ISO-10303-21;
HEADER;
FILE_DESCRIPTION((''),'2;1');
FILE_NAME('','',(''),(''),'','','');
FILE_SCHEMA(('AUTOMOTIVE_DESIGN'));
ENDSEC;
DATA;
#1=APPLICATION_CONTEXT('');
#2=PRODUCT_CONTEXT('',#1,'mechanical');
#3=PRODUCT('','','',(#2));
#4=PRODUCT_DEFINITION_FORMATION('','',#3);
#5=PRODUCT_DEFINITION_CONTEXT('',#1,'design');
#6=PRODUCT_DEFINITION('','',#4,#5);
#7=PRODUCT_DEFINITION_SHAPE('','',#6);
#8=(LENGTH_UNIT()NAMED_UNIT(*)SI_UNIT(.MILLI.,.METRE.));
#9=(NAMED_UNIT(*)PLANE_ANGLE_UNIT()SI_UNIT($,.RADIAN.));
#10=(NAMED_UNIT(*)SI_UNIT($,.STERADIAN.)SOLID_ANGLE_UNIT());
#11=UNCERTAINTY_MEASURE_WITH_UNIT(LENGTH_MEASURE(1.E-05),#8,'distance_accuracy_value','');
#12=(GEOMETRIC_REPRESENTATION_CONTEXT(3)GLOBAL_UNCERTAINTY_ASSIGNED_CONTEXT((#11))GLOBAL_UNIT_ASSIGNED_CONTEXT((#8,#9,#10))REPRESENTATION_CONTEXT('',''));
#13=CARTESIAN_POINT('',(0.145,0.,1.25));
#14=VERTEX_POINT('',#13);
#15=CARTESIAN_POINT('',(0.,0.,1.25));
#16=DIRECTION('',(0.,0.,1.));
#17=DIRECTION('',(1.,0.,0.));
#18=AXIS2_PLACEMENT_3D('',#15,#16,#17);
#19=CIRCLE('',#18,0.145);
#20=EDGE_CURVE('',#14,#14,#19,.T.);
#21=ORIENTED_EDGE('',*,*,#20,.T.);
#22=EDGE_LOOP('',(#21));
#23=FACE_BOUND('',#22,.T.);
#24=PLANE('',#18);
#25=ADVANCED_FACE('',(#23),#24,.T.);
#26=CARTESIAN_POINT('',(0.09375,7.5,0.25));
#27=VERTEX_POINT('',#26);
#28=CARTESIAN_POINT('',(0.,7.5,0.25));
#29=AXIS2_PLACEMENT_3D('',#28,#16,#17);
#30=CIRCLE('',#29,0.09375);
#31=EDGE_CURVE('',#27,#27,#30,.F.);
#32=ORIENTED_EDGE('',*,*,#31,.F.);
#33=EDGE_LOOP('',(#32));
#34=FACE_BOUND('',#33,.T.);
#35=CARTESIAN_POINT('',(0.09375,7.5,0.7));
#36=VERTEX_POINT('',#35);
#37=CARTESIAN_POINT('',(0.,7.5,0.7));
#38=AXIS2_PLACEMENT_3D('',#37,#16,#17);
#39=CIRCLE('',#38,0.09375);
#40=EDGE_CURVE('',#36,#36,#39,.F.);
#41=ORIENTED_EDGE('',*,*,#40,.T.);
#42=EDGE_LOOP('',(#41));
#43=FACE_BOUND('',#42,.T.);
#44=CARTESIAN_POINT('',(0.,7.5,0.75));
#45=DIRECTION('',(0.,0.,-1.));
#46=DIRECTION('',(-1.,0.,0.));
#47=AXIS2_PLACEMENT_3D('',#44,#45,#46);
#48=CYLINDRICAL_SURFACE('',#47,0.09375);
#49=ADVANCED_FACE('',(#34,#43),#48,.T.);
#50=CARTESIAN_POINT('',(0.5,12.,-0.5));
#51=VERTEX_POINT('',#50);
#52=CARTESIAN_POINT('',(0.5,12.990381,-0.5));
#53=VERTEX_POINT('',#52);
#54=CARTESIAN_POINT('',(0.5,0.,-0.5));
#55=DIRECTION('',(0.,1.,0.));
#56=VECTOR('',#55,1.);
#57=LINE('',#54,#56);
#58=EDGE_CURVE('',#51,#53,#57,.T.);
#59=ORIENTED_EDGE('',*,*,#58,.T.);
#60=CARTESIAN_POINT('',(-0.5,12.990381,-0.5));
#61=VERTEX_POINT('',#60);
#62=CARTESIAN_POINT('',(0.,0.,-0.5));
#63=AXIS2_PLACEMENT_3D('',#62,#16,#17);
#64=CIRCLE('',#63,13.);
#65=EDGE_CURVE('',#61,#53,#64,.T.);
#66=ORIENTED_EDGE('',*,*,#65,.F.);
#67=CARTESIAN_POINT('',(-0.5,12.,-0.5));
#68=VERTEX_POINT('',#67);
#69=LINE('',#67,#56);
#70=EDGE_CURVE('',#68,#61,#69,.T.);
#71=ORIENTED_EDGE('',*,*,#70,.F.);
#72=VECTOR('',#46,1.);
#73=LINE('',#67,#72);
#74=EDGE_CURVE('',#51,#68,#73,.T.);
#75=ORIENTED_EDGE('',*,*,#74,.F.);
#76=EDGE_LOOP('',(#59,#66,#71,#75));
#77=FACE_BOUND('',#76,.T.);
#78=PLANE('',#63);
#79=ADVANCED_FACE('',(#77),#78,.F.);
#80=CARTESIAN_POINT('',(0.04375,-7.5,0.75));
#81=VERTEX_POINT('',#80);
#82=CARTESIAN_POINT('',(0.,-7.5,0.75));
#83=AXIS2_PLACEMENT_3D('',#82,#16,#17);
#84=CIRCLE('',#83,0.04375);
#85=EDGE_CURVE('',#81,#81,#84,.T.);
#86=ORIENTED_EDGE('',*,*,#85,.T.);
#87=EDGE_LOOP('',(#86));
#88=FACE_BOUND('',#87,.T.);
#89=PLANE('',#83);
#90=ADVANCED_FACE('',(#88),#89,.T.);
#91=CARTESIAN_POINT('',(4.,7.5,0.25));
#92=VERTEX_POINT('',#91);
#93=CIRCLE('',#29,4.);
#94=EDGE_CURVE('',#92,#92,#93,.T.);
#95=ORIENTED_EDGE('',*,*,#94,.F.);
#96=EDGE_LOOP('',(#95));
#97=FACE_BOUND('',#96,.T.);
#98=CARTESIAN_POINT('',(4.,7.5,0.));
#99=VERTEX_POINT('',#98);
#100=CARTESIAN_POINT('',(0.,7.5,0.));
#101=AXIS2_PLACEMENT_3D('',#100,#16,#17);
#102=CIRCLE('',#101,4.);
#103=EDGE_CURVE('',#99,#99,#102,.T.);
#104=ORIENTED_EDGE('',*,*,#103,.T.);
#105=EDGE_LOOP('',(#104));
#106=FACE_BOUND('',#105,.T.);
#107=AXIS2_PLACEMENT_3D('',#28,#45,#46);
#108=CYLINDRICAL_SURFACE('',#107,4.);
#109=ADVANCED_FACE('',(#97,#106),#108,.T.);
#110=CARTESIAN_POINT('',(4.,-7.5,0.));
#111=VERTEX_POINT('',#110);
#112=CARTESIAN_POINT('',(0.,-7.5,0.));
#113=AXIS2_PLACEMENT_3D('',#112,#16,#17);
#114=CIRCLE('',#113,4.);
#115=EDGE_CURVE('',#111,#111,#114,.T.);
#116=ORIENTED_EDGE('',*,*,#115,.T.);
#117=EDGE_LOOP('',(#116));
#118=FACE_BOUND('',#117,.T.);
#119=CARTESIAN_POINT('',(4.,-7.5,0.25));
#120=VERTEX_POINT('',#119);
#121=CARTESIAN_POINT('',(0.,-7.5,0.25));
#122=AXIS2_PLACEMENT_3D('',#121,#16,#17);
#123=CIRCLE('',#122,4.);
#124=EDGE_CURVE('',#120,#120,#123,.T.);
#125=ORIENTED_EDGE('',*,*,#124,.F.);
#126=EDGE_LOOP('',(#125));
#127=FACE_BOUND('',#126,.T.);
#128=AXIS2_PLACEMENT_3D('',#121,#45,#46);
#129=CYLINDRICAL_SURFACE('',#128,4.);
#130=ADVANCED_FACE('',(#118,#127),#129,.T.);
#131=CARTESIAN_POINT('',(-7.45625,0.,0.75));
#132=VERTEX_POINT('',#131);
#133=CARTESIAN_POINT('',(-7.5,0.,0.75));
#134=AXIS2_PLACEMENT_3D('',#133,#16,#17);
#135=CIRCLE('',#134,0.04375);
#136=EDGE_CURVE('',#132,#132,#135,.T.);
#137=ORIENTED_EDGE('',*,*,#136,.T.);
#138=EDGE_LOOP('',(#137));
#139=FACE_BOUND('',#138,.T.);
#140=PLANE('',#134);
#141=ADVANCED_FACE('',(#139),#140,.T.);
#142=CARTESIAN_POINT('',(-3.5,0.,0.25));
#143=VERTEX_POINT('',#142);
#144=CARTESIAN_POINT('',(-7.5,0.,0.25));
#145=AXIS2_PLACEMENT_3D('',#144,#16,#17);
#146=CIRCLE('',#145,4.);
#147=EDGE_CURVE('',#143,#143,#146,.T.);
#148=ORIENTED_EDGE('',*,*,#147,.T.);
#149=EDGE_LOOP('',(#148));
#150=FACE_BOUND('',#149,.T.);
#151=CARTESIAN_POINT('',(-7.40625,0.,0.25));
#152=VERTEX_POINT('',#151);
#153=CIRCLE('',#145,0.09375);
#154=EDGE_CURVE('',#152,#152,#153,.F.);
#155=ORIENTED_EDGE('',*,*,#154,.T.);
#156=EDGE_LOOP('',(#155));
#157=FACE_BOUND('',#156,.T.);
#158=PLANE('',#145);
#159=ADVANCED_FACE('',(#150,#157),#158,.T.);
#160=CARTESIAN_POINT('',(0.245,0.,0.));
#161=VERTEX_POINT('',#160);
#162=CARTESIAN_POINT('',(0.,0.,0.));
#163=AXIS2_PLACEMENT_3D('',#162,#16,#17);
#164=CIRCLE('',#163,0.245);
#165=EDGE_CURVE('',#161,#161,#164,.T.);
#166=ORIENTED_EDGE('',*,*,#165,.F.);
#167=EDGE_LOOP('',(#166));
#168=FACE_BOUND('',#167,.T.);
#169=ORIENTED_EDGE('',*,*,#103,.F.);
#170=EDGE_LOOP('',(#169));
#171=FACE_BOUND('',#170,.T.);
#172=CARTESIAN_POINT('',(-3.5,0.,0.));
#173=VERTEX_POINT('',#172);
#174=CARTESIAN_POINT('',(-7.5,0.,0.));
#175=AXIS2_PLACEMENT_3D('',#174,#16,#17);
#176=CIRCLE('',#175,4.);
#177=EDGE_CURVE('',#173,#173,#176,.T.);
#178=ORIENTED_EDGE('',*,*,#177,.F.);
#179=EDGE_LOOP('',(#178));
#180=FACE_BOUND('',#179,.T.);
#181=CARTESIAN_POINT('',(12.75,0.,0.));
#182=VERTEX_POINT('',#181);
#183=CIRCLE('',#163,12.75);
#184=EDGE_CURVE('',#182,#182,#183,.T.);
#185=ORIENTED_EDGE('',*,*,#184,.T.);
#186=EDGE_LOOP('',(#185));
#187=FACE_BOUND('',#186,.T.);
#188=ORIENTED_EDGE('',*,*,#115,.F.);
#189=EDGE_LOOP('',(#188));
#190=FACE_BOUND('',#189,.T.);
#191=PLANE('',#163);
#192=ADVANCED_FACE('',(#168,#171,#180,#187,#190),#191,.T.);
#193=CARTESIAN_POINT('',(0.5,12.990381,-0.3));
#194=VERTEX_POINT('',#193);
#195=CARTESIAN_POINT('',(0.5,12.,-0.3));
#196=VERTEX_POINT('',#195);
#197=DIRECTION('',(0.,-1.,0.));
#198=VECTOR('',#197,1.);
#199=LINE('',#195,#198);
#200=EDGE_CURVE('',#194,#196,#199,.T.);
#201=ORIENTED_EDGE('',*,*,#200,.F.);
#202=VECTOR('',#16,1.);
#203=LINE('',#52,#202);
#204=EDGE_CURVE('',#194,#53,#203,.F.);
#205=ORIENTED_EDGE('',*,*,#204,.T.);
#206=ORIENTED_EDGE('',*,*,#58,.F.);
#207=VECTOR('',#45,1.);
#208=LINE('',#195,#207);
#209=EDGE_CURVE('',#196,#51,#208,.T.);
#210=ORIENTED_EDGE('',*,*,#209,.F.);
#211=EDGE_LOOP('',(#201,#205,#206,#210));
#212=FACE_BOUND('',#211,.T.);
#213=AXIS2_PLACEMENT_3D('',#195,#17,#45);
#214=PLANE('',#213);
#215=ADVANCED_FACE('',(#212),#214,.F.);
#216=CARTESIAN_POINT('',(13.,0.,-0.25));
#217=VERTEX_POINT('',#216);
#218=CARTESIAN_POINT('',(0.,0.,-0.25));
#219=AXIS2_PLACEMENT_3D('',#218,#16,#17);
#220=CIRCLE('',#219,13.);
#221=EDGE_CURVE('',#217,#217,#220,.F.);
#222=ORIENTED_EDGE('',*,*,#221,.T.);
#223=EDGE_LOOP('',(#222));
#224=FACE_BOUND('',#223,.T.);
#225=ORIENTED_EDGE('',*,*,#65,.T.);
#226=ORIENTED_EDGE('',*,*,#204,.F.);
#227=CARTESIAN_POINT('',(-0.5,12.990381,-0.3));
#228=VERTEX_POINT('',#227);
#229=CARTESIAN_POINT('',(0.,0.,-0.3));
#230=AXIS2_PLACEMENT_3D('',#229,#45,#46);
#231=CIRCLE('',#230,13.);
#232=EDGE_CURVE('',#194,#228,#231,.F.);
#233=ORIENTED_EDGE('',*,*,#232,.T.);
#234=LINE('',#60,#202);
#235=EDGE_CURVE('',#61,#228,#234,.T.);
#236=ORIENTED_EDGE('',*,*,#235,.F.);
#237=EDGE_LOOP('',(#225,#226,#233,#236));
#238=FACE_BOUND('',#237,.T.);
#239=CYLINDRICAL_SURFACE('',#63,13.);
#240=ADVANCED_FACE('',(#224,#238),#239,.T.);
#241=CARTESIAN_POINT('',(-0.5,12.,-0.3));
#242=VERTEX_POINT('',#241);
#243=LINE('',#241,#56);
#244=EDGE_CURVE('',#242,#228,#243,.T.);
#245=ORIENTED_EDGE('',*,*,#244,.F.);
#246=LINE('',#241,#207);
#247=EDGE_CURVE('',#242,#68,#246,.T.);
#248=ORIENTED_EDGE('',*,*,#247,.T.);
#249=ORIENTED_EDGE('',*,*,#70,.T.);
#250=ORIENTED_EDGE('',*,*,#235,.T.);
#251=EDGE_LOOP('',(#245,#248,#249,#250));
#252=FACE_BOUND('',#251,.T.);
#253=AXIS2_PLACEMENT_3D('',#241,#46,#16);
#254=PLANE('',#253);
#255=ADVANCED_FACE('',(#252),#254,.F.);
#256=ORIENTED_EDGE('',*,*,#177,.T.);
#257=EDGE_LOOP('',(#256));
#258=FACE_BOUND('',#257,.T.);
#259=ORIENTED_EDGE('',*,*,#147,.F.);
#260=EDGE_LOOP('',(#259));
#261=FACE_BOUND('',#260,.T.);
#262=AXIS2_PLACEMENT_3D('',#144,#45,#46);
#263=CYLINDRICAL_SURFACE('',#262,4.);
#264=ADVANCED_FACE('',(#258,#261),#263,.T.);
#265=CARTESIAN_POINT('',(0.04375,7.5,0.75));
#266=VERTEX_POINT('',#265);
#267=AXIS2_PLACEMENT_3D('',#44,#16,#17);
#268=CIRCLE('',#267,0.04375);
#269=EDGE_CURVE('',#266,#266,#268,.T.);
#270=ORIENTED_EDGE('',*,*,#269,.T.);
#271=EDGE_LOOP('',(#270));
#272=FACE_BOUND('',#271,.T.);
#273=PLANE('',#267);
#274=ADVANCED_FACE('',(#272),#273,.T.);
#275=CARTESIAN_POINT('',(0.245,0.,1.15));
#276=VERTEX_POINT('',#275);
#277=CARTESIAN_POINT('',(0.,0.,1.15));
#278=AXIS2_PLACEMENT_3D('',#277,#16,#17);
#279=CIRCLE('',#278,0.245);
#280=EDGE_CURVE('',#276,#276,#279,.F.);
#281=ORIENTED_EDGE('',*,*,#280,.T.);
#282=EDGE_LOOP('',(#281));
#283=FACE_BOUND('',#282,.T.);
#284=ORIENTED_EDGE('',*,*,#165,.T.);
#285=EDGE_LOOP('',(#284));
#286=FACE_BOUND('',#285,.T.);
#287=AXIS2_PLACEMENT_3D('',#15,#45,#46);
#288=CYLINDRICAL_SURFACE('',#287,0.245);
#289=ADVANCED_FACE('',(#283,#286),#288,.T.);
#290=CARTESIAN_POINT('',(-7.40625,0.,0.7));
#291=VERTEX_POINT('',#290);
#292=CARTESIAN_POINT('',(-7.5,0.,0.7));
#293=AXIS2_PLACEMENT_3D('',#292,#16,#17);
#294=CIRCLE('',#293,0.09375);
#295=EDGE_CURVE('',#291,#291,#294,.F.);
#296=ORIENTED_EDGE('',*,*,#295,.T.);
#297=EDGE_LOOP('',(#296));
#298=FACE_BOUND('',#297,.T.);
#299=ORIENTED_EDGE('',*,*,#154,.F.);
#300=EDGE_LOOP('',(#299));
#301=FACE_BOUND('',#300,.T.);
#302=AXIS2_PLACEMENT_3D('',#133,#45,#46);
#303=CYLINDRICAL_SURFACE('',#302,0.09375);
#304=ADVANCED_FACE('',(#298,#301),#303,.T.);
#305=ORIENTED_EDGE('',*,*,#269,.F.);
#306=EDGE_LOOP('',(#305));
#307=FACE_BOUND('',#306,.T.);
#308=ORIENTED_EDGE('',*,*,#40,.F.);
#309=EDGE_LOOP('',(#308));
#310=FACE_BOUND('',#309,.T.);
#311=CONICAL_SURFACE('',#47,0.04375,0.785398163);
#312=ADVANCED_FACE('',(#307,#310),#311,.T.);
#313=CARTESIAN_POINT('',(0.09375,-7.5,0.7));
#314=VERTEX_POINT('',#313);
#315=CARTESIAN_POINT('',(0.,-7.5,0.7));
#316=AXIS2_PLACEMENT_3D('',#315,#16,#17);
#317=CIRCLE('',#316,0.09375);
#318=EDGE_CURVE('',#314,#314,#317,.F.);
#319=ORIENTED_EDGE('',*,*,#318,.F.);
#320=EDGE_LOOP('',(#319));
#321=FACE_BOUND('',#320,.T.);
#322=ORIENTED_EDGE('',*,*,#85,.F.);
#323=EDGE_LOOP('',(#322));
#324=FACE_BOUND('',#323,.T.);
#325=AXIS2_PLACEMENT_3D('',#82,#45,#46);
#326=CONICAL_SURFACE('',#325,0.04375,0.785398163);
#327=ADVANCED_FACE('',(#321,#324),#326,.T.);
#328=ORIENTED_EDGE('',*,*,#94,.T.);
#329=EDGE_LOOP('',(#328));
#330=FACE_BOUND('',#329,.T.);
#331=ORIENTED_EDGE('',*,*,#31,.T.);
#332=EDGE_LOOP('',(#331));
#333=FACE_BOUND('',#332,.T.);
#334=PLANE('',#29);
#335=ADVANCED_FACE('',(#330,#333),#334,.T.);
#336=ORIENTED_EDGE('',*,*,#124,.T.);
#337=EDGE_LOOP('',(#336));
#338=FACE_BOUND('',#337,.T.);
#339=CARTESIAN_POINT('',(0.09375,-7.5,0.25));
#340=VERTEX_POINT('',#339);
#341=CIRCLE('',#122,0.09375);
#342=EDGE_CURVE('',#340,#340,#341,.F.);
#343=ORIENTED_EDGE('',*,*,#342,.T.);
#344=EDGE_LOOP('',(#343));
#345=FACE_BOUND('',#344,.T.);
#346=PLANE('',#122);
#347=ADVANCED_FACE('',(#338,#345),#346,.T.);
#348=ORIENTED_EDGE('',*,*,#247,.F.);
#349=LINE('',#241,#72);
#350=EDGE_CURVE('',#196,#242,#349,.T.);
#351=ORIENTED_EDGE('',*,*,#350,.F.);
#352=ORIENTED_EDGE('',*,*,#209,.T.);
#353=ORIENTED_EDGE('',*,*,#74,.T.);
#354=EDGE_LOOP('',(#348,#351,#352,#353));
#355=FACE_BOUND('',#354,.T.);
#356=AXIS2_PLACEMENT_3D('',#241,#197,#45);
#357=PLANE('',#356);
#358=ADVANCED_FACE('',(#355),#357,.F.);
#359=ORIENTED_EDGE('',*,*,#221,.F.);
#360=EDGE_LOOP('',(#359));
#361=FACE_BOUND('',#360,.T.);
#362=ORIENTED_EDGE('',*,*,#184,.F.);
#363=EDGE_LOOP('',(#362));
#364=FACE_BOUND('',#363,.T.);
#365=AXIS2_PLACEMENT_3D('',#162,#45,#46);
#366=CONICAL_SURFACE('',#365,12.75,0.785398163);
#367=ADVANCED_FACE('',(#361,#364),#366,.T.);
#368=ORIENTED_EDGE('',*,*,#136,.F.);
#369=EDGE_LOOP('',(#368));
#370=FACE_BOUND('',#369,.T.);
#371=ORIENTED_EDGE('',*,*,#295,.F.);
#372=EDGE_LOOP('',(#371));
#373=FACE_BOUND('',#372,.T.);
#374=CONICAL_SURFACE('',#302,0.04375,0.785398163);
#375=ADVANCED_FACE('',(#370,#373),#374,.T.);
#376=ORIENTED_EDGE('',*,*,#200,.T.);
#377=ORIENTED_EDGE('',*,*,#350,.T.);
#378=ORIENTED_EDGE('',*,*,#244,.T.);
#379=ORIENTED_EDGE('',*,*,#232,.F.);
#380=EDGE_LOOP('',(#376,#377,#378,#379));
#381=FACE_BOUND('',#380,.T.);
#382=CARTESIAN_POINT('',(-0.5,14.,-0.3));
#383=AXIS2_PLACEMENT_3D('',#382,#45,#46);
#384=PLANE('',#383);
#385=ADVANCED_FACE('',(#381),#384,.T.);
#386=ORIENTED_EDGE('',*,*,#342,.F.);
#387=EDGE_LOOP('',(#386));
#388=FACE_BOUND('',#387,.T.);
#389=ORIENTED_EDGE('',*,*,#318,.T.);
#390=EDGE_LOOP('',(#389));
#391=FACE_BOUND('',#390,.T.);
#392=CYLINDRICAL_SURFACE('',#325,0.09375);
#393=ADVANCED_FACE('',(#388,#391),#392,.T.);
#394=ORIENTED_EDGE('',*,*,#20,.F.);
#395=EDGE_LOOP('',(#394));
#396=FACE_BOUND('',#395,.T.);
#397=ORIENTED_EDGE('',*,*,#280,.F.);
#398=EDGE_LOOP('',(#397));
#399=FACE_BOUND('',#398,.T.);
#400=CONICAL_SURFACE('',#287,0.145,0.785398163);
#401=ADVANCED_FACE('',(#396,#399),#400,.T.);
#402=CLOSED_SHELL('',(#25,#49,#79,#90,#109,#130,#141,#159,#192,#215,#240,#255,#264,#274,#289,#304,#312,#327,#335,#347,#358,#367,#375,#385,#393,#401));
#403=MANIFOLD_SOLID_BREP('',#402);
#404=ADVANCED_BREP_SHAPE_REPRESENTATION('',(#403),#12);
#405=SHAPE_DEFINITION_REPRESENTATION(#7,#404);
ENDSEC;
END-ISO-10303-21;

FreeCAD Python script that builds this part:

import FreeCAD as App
import Part
import Sketcher


def edges_at(feature, points):
    """Names of the edges that pass closest to the given points."""
    edges = feature.Shape.Edges
    near = lambda p: min(range(len(edges)), key=lambda i: edges[i].distToShape(Part.Vertex(*p))[0])
    return sorted({f"Edge{near(p) + 1}" for p in points})


def add_polygon(sketch, points):
    """Adds a closed chain of lines whose ends are joined by coincident constraints."""
    first, n = sketch.GeometryCount, len(points)
    for a, b in zip(points, points[1:] + points[:1]):
        sketch.addGeometry(Part.LineSegment(App.Vector(*a, 0), App.Vector(*b, 0)), False)
    for i in range(n):
        sketch.addConstraint(Sketcher.Constraint("Coincident", first + i, 2, first + (i + 1) % n, 1))

doc = App.newDocument("Part")
body = doc.addObject("PartDesign::Body", "Body")

sketch1 = body.newObject("Sketcher::SketchObject", "Sketch")
sketch1.AttachmentSupport = (doc.getObject("XY_Plane"), [""])
sketch1.MapMode = "FlatFace"
sketch1.addGeometry(Part.Circle(App.Vector(0, 0, 0), App.Vector(0, 0, 1), 13), False)
sketch1.addConstraint([
    Sketcher.Constraint("Coincident", 0, 3, -1, 1),
    Sketcher.Constraint("Diameter", 0, 26.0),
])
pad1 = body.newObject("PartDesign::Pad", "Pad")
pad1.Profile = sketch1
pad1.Length = 0.5
pad1.Reversed = True

sketch2 = body.newObject("Sketcher::SketchObject", "Sketch001")
sketch2.AttachmentSupport = (doc.getObject("XY_Plane"), [""])
sketch2.MapMode = "FlatFace"
sketch2.addGeometry([
    Part.Circle(App.Vector(-7.5, 0, 0), App.Vector(0, 0, 1), 4),
    Part.Circle(App.Vector(0, 7.5, 0), App.Vector(0, 0, 1), 4),
    Part.Circle(App.Vector(0, -7.5, 0), App.Vector(0, 0, 1), 4),
], False)
sketch2.addConstraint([
    Sketcher.Constraint("Equal", 0, 1),
    Sketcher.Constraint("Equal", 1, 2),
    Sketcher.Constraint("Symmetric", 1, 3, 2, 3, -1, 1),
    Sketcher.Constraint("PointOnObject", 0, 3, -1),
    Sketcher.Constraint("PointOnObject", 1, 3, -2),
    Sketcher.Constraint("Diameter", 0, 8.0),
    Sketcher.Constraint("DistanceY", 2, 3, 1, 3, 15.0),
    Sketcher.Constraint("DistanceX", 0, 3, -1, 1, 7.5),
])
pad2 = body.newObject("PartDesign::Pad", "Pad001")
pad2.Profile = sketch2
pad2.Length = 0.25

sketch3 = body.newObject("Sketcher::SketchObject", "Sketch002")
sketch3.AttachmentSupport = (doc.getObject("XY_Plane"), [""])
sketch3.MapMode = "FlatFace"
sketch3.addGeometry([
    Part.Circle(App.Vector(-7.5, 0, 0), App.Vector(0, 0, 1), 0.09),
    Part.Circle(App.Vector(0, 7.5, 0), App.Vector(0, 0, 1), 0.09),
    Part.Circle(App.Vector(0, -7.5, 0), App.Vector(0, 0, 1), 0.09),
], False)
sketch3.addConstraint([
    Sketcher.Constraint("Equal", 0, 1),
    Sketcher.Constraint("Equal", 1, 2),
    Sketcher.Constraint("Symmetric", 1, 3, 2, 3, -1, 1),
    Sketcher.Constraint("PointOnObject", 0, 3, -1),
    Sketcher.Constraint("PointOnObject", 1, 3, -2),
    Sketcher.Constraint("DistanceY", 2, 3, 1, 3, 15.0),
    Sketcher.Constraint("Diameter", 0, 0.1875),
    Sketcher.Constraint("DistanceX", 0, 3, -1, 1, 7.5),
])
pad3 = body.newObject("PartDesign::Pad", "Pad002")
pad3.Profile = sketch3
pad3.Length = 0.75

sketch4 = body.newObject("Sketcher::SketchObject", "Sketch003")
sketch4.AttachmentSupport = (doc.getObject("XY_Plane"), [""])
sketch4.MapMode = "FlatFace"
sketch4.addGeometry(Part.Circle(App.Vector(0, 0, 0), App.Vector(0, 0, 1), 0.24), False)
sketch4.addConstraint([
    Sketcher.Constraint("Coincident", 0, 3, -1, 1),
    Sketcher.Constraint("Diameter", 0, 0.49),
])
pad4 = body.newObject("PartDesign::Pad", "Pad003")
pad4.Profile = sketch4
pad4.Length = 1.25

sketch5 = body.newObject("Sketcher::SketchObject", "Sketch004")
sketch5.AttachmentSupport = (doc.getObject("XY_Plane"), [""])
sketch5.MapMode = "FlatFace"
sketch5.AttachmentOffset = App.Placement(App.Vector(0, 0, -0.5), App.Rotation())
add_polygon(sketch5, [(0.5, 14), (0.5, 12), (-0.5, 12), (-0.5, 14)])
sketch5.addConstraint([
    Sketcher.Constraint("Vertical", 0),
    Sketcher.Constraint("Horizontal", 1),
    Sketcher.Constraint("Vertical", 2),
    Sketcher.Constraint("Horizontal", 3),
    Sketcher.Constraint("DistanceX", 1, 2, 1, 1, 1.0),
    Sketcher.Constraint("DistanceY", 0, 2, 0, 1, 2.0),
    Sketcher.Constraint("DistanceY", -1, 1, 0, 2, 12.0),
    Sketcher.Constraint("DistanceX", -1, 1, 0, 2, 0.5),
])
pocket1 = body.newObject("PartDesign::Pocket", "Pocket")
pocket1.Profile = sketch5
pocket1.Length = 0.2
pocket1.Reversed = True
doc.recompute()

chamfer = body.newObject("PartDesign::Chamfer", "Chamfer")
chamfer.Base = (pocket1, edges_at(pocket1, [(-0.245, 0, 1.25)]))
chamfer.Size = 0.1
doc.recompute()

chamfer2 = body.newObject("PartDesign::Chamfer", "Chamfer001")
chamfer2.Base = (chamfer, edges_at(chamfer, [(-7.594, 0, 0.75), (-0.094, 7.5, 0.75), (-0.094, -7.5, 0.75)]))
chamfer2.Size = 0.05
doc.recompute()

chamfer3 = body.newObject("PartDesign::Chamfer", "Chamfer002")
chamfer3.Base = (chamfer2, edges_at(chamfer2, [(-13, 0, 0)]))
chamfer3.Size = 0.25

doc.recompute()
